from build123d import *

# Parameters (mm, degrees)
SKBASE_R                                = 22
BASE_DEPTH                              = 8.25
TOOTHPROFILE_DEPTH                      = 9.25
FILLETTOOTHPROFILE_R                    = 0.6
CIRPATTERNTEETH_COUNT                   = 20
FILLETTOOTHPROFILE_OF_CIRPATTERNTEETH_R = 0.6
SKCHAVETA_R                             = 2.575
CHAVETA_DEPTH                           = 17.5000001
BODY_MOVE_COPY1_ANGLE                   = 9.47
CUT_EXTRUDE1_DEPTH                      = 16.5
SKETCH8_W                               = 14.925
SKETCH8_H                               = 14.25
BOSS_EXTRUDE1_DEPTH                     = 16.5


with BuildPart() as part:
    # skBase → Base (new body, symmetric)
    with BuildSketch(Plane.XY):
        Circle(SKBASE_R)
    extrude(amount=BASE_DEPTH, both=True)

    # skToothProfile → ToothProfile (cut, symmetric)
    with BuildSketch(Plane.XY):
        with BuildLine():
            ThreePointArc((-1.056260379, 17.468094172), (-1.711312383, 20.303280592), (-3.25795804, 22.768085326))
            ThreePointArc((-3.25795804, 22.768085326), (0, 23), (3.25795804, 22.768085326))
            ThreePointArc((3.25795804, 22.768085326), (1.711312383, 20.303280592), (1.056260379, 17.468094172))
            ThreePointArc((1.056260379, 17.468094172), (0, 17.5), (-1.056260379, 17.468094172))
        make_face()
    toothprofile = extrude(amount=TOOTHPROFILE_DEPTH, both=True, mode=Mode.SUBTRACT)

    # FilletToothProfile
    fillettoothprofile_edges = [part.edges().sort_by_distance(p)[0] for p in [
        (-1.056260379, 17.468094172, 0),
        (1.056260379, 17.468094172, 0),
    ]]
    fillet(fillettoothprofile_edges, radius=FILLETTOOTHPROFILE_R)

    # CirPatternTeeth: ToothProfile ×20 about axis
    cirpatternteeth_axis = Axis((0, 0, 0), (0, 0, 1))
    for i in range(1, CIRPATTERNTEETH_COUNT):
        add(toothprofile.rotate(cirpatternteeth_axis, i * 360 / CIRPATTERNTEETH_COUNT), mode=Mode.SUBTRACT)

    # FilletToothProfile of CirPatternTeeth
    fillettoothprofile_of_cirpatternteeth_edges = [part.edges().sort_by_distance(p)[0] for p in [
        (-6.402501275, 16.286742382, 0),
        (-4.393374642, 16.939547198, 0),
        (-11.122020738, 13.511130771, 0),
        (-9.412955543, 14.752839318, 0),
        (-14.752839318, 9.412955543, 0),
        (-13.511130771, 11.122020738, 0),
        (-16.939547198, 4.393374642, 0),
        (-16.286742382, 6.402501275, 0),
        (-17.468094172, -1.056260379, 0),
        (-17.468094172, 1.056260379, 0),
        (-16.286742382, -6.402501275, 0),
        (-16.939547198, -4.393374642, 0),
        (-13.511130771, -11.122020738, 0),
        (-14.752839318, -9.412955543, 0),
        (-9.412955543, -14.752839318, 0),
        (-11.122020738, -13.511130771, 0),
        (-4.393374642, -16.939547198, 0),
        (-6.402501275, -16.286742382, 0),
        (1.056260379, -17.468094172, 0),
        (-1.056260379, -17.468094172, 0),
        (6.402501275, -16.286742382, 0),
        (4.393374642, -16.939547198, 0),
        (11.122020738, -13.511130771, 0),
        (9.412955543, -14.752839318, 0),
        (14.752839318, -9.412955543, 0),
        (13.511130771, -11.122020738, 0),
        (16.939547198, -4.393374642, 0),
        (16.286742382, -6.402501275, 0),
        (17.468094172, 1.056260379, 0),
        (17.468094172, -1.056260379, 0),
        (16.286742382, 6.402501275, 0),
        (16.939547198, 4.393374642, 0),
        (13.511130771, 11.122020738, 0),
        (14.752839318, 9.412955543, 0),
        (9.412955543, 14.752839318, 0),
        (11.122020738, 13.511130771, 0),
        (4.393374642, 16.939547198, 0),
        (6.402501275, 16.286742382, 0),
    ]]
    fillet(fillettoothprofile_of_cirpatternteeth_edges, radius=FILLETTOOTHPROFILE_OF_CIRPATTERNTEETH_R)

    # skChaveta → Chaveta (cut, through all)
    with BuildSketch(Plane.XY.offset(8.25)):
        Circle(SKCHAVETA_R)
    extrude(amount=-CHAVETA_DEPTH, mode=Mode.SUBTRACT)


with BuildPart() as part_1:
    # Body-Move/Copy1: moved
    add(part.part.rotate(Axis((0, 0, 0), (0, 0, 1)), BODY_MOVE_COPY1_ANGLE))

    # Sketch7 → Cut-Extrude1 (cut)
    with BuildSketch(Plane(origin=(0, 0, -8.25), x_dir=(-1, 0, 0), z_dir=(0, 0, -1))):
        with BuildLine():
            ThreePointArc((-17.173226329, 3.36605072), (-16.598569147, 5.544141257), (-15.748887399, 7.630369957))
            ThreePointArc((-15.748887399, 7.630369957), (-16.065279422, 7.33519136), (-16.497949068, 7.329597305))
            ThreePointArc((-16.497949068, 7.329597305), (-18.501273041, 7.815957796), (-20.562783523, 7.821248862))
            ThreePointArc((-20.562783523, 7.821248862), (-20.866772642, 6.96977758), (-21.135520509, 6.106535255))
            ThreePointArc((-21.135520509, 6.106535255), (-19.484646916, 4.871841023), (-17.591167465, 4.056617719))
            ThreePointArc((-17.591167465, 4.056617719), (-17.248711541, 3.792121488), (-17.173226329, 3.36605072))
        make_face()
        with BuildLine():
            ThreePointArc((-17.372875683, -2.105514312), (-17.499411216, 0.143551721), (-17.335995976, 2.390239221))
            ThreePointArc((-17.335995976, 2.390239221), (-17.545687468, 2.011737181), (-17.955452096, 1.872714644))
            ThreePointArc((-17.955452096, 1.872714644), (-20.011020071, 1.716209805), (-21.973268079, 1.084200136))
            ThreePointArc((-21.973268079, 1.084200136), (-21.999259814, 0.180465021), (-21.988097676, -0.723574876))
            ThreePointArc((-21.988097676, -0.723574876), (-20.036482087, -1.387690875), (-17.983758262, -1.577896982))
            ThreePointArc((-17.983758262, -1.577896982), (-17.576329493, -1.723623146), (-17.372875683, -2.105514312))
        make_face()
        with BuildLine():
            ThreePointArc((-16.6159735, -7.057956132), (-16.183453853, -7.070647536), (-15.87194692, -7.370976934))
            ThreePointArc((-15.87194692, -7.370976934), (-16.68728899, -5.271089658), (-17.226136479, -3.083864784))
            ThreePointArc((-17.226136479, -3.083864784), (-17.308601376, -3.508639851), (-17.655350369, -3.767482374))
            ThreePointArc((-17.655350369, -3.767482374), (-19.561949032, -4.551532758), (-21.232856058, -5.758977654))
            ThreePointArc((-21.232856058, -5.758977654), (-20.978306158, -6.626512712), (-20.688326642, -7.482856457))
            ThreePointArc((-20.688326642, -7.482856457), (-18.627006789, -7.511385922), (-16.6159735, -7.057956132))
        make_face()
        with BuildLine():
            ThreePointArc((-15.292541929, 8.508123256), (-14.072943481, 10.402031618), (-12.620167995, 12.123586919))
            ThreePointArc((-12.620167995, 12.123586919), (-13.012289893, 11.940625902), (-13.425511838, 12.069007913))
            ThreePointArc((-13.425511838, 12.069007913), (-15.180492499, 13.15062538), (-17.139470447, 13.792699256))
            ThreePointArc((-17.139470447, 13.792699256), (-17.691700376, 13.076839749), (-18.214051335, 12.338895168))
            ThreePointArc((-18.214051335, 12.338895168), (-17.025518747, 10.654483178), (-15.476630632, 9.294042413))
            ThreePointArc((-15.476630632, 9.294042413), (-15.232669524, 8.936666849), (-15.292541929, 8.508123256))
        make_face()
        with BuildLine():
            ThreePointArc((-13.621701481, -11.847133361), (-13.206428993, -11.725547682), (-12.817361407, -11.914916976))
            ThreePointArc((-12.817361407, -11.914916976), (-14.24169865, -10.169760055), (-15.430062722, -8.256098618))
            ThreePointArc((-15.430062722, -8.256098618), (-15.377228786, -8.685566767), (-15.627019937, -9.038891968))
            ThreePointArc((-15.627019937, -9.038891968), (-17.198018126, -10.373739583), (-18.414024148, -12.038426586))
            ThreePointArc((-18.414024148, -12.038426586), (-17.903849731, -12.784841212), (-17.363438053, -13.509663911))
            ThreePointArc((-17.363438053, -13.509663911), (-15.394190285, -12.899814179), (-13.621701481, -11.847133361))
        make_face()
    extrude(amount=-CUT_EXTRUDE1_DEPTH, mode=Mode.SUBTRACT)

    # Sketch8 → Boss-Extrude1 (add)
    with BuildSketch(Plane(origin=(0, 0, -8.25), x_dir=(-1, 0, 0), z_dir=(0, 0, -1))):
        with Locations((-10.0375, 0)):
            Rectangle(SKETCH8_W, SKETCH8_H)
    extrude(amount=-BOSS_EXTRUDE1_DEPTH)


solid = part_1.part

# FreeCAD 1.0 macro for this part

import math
import FreeCAD as App
import Part
import Sketcher

V = App.Vector


def edges_at(feature, points):
    """Names of the edges that pass closest to the given points."""
    edges = feature.Shape.Edges
    near = lambda p: min(range(len(edges)), key=lambda i: edges[i].distToShape(Part.Vertex(*p))[0])
    return sorted({f"Edge{near(p) + 1}" for p in points})

doc = App.newDocument("Part")
body = doc.addObject("PartDesign::Body", "Body")

sketch1 = body.newObject("Sketcher::SketchObject", "Sketch")
sketch1.AttachmentSupport = (doc.getObject("XY_Plane"), [""])
sketch1.MapMode = "FlatFace"
sketch1.addGeometry(Part.Circle(V(0, 0, 0), V(0, 0, 1), 22), False)
sketch1.addConstraint([
    Sketcher.Constraint("Coincident", 0, 3, -1, 1),
    Sketcher.Constraint("Diameter", 0, 44.0),
])
pad1 = body.newObject("PartDesign::Pad", "Pad")
pad1.Profile = sketch1
pad1.Length = 16.5
pad1.Midplane = True

sketch2 = body.newObject("Sketcher::SketchObject", "Sketch001")
sketch2.AttachmentSupport = (doc.getObject("XY_Plane"), [""])
sketch2.MapMode = "FlatFace"
sketch2.addGeometry([
    Part.ArcOfCircle(Part.Circle(V(-9.8, 16.9, 0), V(0, 0, 1), 8.8), math.radians(3), math.radians(42)),
    Part.ArcOfCircle(Part.Circle(V(0, 0, 0), V(0, 0, 1), 17.5), math.radians(86.54), math.radians(93.46)),
    Part.ArcOfCircle(Part.Circle(V(9.8, 16.9, 0), V(0, 0, 1), 8.8), math.radians(138), math.radians(177)),
    Part.ArcOfCircle(Part.Circle(V(0, 0, 0), V(0, 0, 1), 23), math.radians(81.86), math.radians(98.14)),
], False)
sketch2.addConstraint([
    Sketcher.Constraint("Coincident", 0, 1, 1, 2),
    Sketcher.Constraint("Coincident", 1, 1, 2, 2),
    Sketcher.Constraint("Coincident", 2, 1, 3, 1),
    Sketcher.Constraint("Coincident", 3, 2, 0, 2),
    Sketcher.Constraint("Coincident", 1, 3, -1, 1),
    Sketcher.Constraint("Coincident", 3, 3, -1, 1),
    Sketcher.Constraint("Equal", 0, 2),
    Sketcher.Constraint("Symmetric", 0, 3, 2, 3, -2),
    Sketcher.Constraint("Radius", 3, 23.0),
    Sketcher.Constraint("Radius", 1, 17.5),
    Sketcher.Constraint("Radius", 0, 8.77026),
    Sketcher.Constraint("DistanceX", 0, 3, -1, 1, 9.81053),
    Sketcher.Constraint("DistanceY", -1, 1, 0, 3, 16.938741),
])
pocket1 = body.newObject("PartDesign::Pocket", "Pocket")
pocket1.Profile = sketch2
pocket1.Length = 18.5
pocket1.Midplane = True
doc.recompute()

fillet = body.newObject("PartDesign::Fillet", "Fillet")
fillet.Base = (pocket1, edges_at(pocket1, [(-1.056, 17.468, 0), (1.056, 17.468, 0)]))
fillet.Radius = 0.6
doc.recompute()

polarpattern = body.newObject("PartDesign::PolarPattern", "PolarPattern")
polarpattern.Originals = [pocket1]
polarpattern.Axis = (doc.getObject("Z_Axis"), [""])
polarpattern.Angle = 360
polarpattern.Occurrences = 20
body.Tip = polarpattern
doc.recompute()

fillet2 = body.newObject("PartDesign::Fillet", "Fillet001")
fillet2.Base = (polarpattern, edges_at(polarpattern, [
    (-6.403, 16.287, 0),
    (-4.393, 16.94, 0),
    (-11.122, 13.511, 0),
    (-9.413, 14.753, 0),
    (-14.753, 9.413, 0),
    (-13.511, 11.122, 0),
    (-16.94, 4.393, 0),
    (-16.287, 6.403, 0),
    (-17.468, -1.056, 0),
    (-17.468, 1.056, 0),
    (-16.287, -6.403, 0),
    (-16.94, -4.393, 0),
    (-13.511, -11.122, 0),
    (-14.753, -9.413, 0),
    (-9.413, -14.753, 0),
    (-11.122, -13.511, 0),
    (-4.393, -16.94, 0),
    (-6.403, -16.287, 0),
    (1.056, -17.468, 0),
    (-1.056, -17.468, 0),
    (6.403, -16.287, 0),
    (4.393, -16.94, 0),
    (11.122, -13.511, 0),
    (9.413, -14.753, 0),
    (14.753, -9.413, 0),
    (13.511, -11.122, 0),
    (16.94, -4.393, 0),
    (16.287, -6.403, 0),
    (17.468, 1.056, 0),
    (17.468, -1.056, 0),
    (16.287, 6.403, 0),
    (16.94, 4.393, 0),
    (13.511, 11.122, 0),
    (14.753, 9.413, 0),
    (9.413, 14.753, 0),
    (11.122, 13.511, 0),
    (4.393, 16.94, 0),
    (6.403, 16.287, 0),
]))
fillet2.Radius = 0.6

sketch3 = body.newObject("Sketcher::SketchObject", "Sketch002")
sketch3.AttachmentSupport = (doc.getObject("XY_Plane"), [""])
sketch3.MapMode = "FlatFace"
sketch3.AttachmentOffset = App.Placement(V(0, 0, 8.25), App.Rotation())
sketch3.addGeometry(Part.Circle(V(0, 0, 0), V(0, 0, 1), 2.6), False)
sketch3.addConstraint([
    Sketcher.Constraint("Coincident", 0, 3, -1, 1),
    Sketcher.Constraint("Diameter", 0, 5.15),
])
pocket2 = body.newObject("PartDesign::Pocket", "Pocket001")
pocket2.Profile = sketch3
pocket2.Type = "ThroughAll"
body2 = doc.addObject("PartDesign::Body", "Body001")
doc.recompute()

body.Placement = App.Placement(V(0, 0, 0), App.Rotation(V(0, 0, 1), 9.47))
boolean = body2.newObject("PartDesign::Boolean", "Boolean")
boolean.Type = "Fuse"
boolean.addObjects([body])

sketch4 = body2.newObject("Sketcher::SketchObject", "Sketch003")
sketch4.AttachmentSupport = (doc.getObject("XY_Plane001"), [""])
sketch4.MapMode = "FlatFace"
sketch4.AttachmentOffset = App.Placement(V(0, 0, -8.25), App.Rotation())
sketch4.addGeometry([
    Part.ArcOfCircle(Part.Circle(V(0, 0, 0), V(0, 0, 1), 17.5), math.radians(11.09), math.radians(25.85)),
    Part.ArcOfCircle(Part.Circle(V(16.3, 7.9, 0), V(0, 0, 1), 0.6), math.radians(-154), math.radians(-70)),
    Part.ArcOfCircle(Part.Circle(V(19.6, -0.9, 0), V(0, 0, 1), 8.8), math.radians(83), math.radians(110)),
    Part.ArcOfCircle(Part.Circle(V(0, 0, 0), V(0, 0, 1), 22), math.radians(16.12), math.radians(20.82)),
    Part.ArcOfCircle(Part.Circle(V(15.1, 12.5, 0), V(0, 0, 1), 8.8), math.radians(-73), math.radians(-46)),
    Part.ArcOfCircle(Part.Circle(V(17.8, 3.5, 0), V(0, 0, 1), 0.6), math.radians(107), math.radians(191)),
    Part.ArcOfCircle(Part.Circle(V(0, 0, 0), V(0, 0, 1), 17.5), math.radians(-6.91), math.radians(7.85)),
    Part.ArcOfCircle(Part.Circle(V(17.9, 2.5, 0), V(0, 0, 1), 0.6), math.radians(-172), math.radians(-88)),
    Part.ArcOfCircle(Part.Circle(V(18.3, -6.9, 0), V(0, 0, 1), 8.8), math.radians(65), math.radians(92)),
    Part.ArcOfCircle(Part.Circle(V(0, 0, 0), V(0, 0, 1), 22), math.radians(-1.88), math.radians(2.82)),
    Part.ArcOfCircle(Part.Circle(V(18.2, 7.2, 0), V(0, 0, 1), 8.8), math.radians(-91), math.radians(-64)),
    Part.ArcOfCircle(Part.Circle(V(18, -2.2, 0), V(0, 0, 1), 0.6), math.radians(89), math.radians(173)),
    Part.ArcOfCircle(Part.Circle(V(16.4, -7.6, 0), V(0, 0, 1), 0.6), math.radians(71), math.radians(155)),
    Part.ArcOfCircle(Part.Circle(V(0, 0, 0), V(0, 0, 1), 17.5), math.radians(-24.91), math.radians(-10.15)),
    Part.ArcOfCircle(Part.Circle(V(17.8, -3.2, 0), V(0, 0, 1), 0.6), math.radians(170), math.radians(254)),
    Part.ArcOfCircle(Part.Circle(V(15.3, -12.2, 0), V(0, 0, 1), 8.8), math.radians(47), math.radians(74)),
    Part.ArcOfCircle(Part.Circle(V(0, 0, 0), V(0, 0, 1), 22), math.radians(-19.88), math.radians(-15.18)),
    Part.ArcOfCircle(Part.Circle(V(19.5, 1.2, 0), V(0, 0, 1), 8.8), math.radians(-109), math.radians(-82)),
    Part.ArcOfCircle(Part.Circle(V(0, 0, 0), V(0, 0, 1), 17.5), math.radians(29.09), math.radians(43.85)),
    Part.ArcOfCircle(Part.Circle(V(13.1, 12.5, 0), V(0, 0, 1), 0.6), math.radians(-136), math.radians(-52)),
    Part.ArcOfCircle(Part.Circle(V(18.9, 5.2, 0), V(0, 0, 1), 8.8), math.radians(101), math.radians(128)),
    Part.ArcOfCircle(Part.Circle(V(0, 0, 0), V(0, 0, 1), 22), math.radians(34.12), math.radians(38.82)),
    Part.ArcOfCircle(Part.Circle(V(10.5, 16.5, 0), V(0, 0, 1), 8.8), math.radians(-55), math.radians(-28)),
    Part.ArcOfCircle(Part.Circle(V(15.8, 8.8, 0), V(0, 0, 1), 0.6), math.radians(125), math.radians(209)),
    Part.ArcOfCircle(Part.Circle(V(13.3, -12.3, 0), V(0, 0, 1), 0.6), math.radians(53), math.radians(137)),
    Part.ArcOfCircle(Part.Circle(V(0, 0, 0), V(0, 0, 1), 17.5), math.radians(-42.91), math.radians(-28.15)),
    Part.ArcOfCircle(Part.Circle(V(16, -8.5, 0), V(0, 0, 1), 0.6), math.radians(152), math.radians(236)),
    Part.ArcOfCircle(Part.Circle(V(10.8, -16.3, 0), V(0, 0, 1), 8.8), math.radians(29), math.radians(56)),
    Part.ArcOfCircle(Part.Circle(V(0, 0, 0), V(0, 0, 1), 22), math.radians(-37.88), math.radians(-33.18)),
    Part.ArcOfCircle(Part.Circle(V(19, -4.9, 0), V(0, 0, 1), 8.8), math.radians(-127), math.radians(-100)),
], False)
sketch4.addConstraint([
    Sketcher.Constraint("Tangent", 0, 2, 1, 1),
    Sketcher.Constraint("Tangent", 1, 2, 2, 2),
    Sketcher.Constraint("Coincident", 2, 1, 3, 2),
    Sketcher.Constraint("Coincident", 3, 1, 4, 2),
    Sketcher.Constraint("Tangent", 4, 1, 5, 1),
    Sketcher.Constraint("Tangent", 5, 2, 0, 1),
    Sketcher.Constraint("Tangent", 6, 2, 7, 1),
    Sketcher.Constraint("Tangent", 7, 2, 8, 2),
    Sketcher.Constraint("Coincident", 8, 1, 9, 2),
    Sketcher.Constraint("Coincident", 9, 1, 10, 2),
    Sketcher.Constraint("Tangent", 10, 1, 11, 1),
    Sketcher.Constraint("Tangent", 11, 2, 6, 1),
    Sketcher.Constraint("Tangent", 12, 2, 13, 1),
    Sketcher.Constraint("Tangent", 13, 2, 14, 1),
    Sketcher.Constraint("Tangent", 14, 2, 15, 2),
    Sketcher.Constraint("Coincident", 15, 1, 16, 2),
    Sketcher.Constraint("Coincident", 16, 1, 17, 2),
    Sketcher.Constraint("Tangent", 17, 1, 12, 1),
    Sketcher.Constraint("Tangent", 18, 2, 19, 1),
    Sketcher.Constraint("Tangent", 19, 2, 20, 2),
    Sketcher.Constraint("Coincident", 20, 1, 21, 2),
    Sketcher.Constraint("Coincident", 21, 1, 22, 2),
    Sketcher.Constraint("Tangent", 22, 1, 23, 1),
    Sketcher.Constraint("Tangent", 23, 2, 18, 1),
    Sketcher.Constraint("Tangent", 24, 2, 25, 1),
    Sketcher.Constraint("Tangent", 25, 2, 26, 1),
    Sketcher.Constraint("Tangent", 26, 2, 27, 2),
    Sketcher.Constraint("Coincident", 27, 1, 28, 2),
    Sketcher.Constraint("Coincident", 28, 1, 29, 2),
    Sketcher.Constraint("Tangent", 29, 1, 24, 1),
    Sketcher.Constraint("Coincident", 0, 3, -1, 1),
    Sketcher.Constraint("Coincident", 3, 3, -1, 1),
    Sketcher.Constraint("Coincident", 6, 3, -1, 1),
    Sketcher.Constraint("Coincident", 9, 3, -1, 1),
    Sketcher.Constraint("Coincident", 13, 3, -1, 1),
    Sketcher.Constraint("Coincident", 16, 3, -1, 1),
    Sketcher.Constraint("Coincident", 18, 3, -1, 1),
    Sketcher.Constraint("Coincident", 21, 3, -1, 1),
    Sketcher.Constraint("Coincident", 25, 3, -1, 1),
    Sketcher.Constraint("Coincident", 28, 3, -1, 1),
    Sketcher.Constraint("Equal", 2, 4),
    Sketcher.Constraint("Equal", 1, 5),
    Sketcher.Constraint("Equal", 0, 6),
    Sketcher.Constraint("Equal", 5, 7),
    Sketcher.Constraint("Equal", 4, 8),
    Sketcher.Constraint("Equal", 3, 9),
    Sketcher.Constraint("Equal", 8, 10),
    Sketcher.Constraint("Equal", 7, 11),
    Sketcher.Constraint("Equal", 11, 12),
    Sketcher.Constraint("Equal", 6, 13),
    Sketcher.Constraint("Equal", 12, 14),
    Sketcher.Constraint("Equal", 10, 15),
    Sketcher.Constraint("Equal", 9, 16),
    Sketcher.Constraint("Equal", 15, 17),
    Sketcher.Constraint("Equal", 13, 18),
    Sketcher.Constraint("Equal", 14, 19),
    Sketcher.Constraint("Equal", 17, 20),
    Sketcher.Constraint("Equal", 16, 21),
    Sketcher.Constraint("Equal", 20, 22),
    Sketcher.Constraint("Equal", 19, 23),
    Sketcher.Constraint("Equal", 23, 24),
    Sketcher.Constraint("Equal", 18, 25),
    Sketcher.Constraint("Equal", 24, 26),
    Sketcher.Constraint("Equal", 22, 27),
    Sketcher.Constraint("Equal", 21, 28),
    Sketcher.Constraint("Equal", 27, 29),
    Sketcher.Constraint("Radius", 3, 22.0),
    Sketcher.Constraint("Radius", 0, 17.5),
    Sketcher.Constraint("Radius", 1, 0.6),
    Sketcher.Constraint("Radius", 2, 8.77026),
    Sketcher.Constraint("DistanceX", 19, 3, 23, 3, 2.763998),
    Sketcher.Constraint("DistanceX", -1, 1, 15, 3, 15.296202),
    Sketcher.Constraint("DistanceX", -1, 1, 22, 3, 10.503498),
    Sketcher.Constraint("DistanceX", -1, 1, 29, 3, 18.955301),
    Sketcher.Constraint("DistanceY", -1, 1, 8, 1, 1.0842),
    Sketcher.Constraint("DistanceY", -1, 1, 20, 1, 13.792699),
    Sketcher.Constraint("DistanceY", 25, 2, -1, 1, 8.256099),
    Sketcher.Constraint("DistanceX", -1, 1, 29, 1, 13.621701),
    Sketcher.Constraint("DistanceY", 1, 3, 4, 3, 4.5718),
    Sketcher.Constraint("DistanceY", 12, 3, 14, 3, 4.434099),
    Sketcher.Constraint("DistanceX", 19, 3, 4, 3, 2.040901),
    Sketcher.Constraint("DistanceY", 7, 3, 20, 3, 2.723202),
    Sketcher.Constraint("DistanceY", 8, 3, 29, 3, 2.0048),
    Sketcher.Constraint("DistanceX", 1, 3, 1, 2, 0.2091),
    Sketcher.Constraint("DistanceY", 14, 3, 10, 1, 1.6117),
    Sketcher.Constraint("DistanceX", 12, 2, 14, 3, 1.9448),
    Sketcher.Constraint("DistanceX", 12, 3, 16, 1, 4.272199),
    Sketcher.Constraint("DistanceX", -1, 1, 1, 3, 16.288849),
    Sketcher.Constraint("DistanceX", -1, 1, 10, 3, 18.206539),
    Sketcher.Constraint("DistanceX", -1, 1, 27, 3, 10.773068),
])
pocket3 = body2.newObject("PartDesign::Pocket", "Pocket002")
pocket3.Profile = sketch4
pocket3.Length = 16.5
pocket3.Reversed = True

sketch5 = body2.newObject("Sketcher::SketchObject", "Sketch004")
sketch5.AttachmentSupport = (doc.getObject("XY_Plane001"), [""])
sketch5.MapMode = "FlatFace"
sketch5.AttachmentOffset = App.Placement(V(0, 0, -8.25), App.Rotation())
sketch5.addGeometry([
    Part.LineSegment(V(18, 7, 0), V(18, -7, 0)),
    Part.LineSegment(V(18, -7, 0), V(3, -7, 0)),
    Part.LineSegment(V(3, -7, 0), V(3, 7, 0)),
    Part.LineSegment(V(3, 7, 0), V(18, 7, 0)),
], False)
sketch5.addConstraint([
    Sketcher.Constraint("Coincident", 0, 2, 1, 1),
    Sketcher.Constraint("Coincident", 1, 2, 2, 1),
    Sketcher.Constraint("Coincident", 2, 2, 3, 1),
    Sketcher.Constraint("Coincident", 3, 2, 0, 1),
    Sketcher.Constraint("Vertical", 0),
    Sketcher.Constraint("Horizontal", 1),
    Sketcher.Constraint("Vertical", 2),
    Sketcher.Constraint("Horizontal", 3),
    Sketcher.Constraint("DistanceY", 0, 2, 0, 1, 14.25),
    Sketcher.Constraint("DistanceX", -1, 1, 0, 2, 17.5),
    Sketcher.Constraint("DistanceX", 1, 2, 1, 1, 14.925),
    Sketcher.Constraint("DistanceY", 0, 2, -1, 1, 7.125),
])
pad2 = body2.newObject("PartDesign::Pad", "Pad001")
pad2.Profile = sketch5
pad2.Length = 16.5

doc.recompute()
